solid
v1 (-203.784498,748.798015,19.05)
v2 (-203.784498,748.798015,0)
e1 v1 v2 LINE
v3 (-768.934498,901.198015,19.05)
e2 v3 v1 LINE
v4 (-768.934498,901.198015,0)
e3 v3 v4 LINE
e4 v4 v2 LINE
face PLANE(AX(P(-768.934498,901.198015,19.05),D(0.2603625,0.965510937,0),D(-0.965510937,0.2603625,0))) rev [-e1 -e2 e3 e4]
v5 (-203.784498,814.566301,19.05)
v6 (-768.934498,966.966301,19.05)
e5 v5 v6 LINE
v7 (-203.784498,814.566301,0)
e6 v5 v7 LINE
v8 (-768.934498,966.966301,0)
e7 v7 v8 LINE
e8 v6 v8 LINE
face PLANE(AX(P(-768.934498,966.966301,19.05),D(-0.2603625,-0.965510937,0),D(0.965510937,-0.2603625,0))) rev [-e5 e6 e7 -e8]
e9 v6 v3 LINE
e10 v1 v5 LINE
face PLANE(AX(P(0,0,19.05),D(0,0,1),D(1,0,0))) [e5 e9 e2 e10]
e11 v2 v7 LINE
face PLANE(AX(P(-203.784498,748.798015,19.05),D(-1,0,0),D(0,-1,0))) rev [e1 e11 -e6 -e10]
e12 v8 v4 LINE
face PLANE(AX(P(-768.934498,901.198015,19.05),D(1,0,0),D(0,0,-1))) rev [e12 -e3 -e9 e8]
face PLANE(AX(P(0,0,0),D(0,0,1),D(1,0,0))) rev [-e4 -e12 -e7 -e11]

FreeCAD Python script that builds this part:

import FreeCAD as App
import Part
import Sketcher
Q = App.Units.Quantity


def add_polygon(sketch, points):
    """Adds a closed chain of lines whose ends are joined by coincident constraints."""
    first, n = sketch.GeometryCount, len(points)
    for a, b in zip(points, points[1:] + points[:1]):
        sketch.addGeometry(Part.LineSegment(App.Vector(*a, 0), App.Vector(*b, 0)), False)
    for i in range(n):
        sketch.addConstraint(Sketcher.Constraint("Coincident", first + i, 2, first + (i + 1) % n, 1))

doc = App.newDocument("Part")
body = doc.addObject("PartDesign::Body", "Body")

# Sketch on XY plane
sketch1 = body.newObject("Sketcher::SketchObject", "Sketch")
sketch1.AttachmentSupport = (doc.getObject("XY_Plane"), [""])
sketch1.MapMode = "FlatFace"
add_polygon(sketch1, [(-769, 967), (-769, 901), (-204, 749), (-204, 815)])  # lines 0-3
sketch1.addConstraint([
    Sketcher.Constraint("Vertical", 0),
    Sketcher.Constraint("Vertical", 2),
    Sketcher.Constraint("Parallel", 1, 3),
    Sketcher.Constraint("DistanceY", 1, 2, 0, 2, Q("6 in")),
    Sketcher.Constraint("DistanceX", 0, 2, 1, 2, Q("22.25 in")),
    Sketcher.Constraint("DistanceX", 0, 2, -1, 1, 768.934498),
    Sketcher.Constraint("DistanceY", -1, 1, 2, 2, 814.566301),
    Sketcher.Constraint("DistanceY", 0, 2, 0, 1, 65.768287),
])
pad1 = body.newObject("PartDesign::Pad", "Pad")
pad1.Profile = sketch1
pad1.Length = Q("0.75 in")

doc.recompute()
